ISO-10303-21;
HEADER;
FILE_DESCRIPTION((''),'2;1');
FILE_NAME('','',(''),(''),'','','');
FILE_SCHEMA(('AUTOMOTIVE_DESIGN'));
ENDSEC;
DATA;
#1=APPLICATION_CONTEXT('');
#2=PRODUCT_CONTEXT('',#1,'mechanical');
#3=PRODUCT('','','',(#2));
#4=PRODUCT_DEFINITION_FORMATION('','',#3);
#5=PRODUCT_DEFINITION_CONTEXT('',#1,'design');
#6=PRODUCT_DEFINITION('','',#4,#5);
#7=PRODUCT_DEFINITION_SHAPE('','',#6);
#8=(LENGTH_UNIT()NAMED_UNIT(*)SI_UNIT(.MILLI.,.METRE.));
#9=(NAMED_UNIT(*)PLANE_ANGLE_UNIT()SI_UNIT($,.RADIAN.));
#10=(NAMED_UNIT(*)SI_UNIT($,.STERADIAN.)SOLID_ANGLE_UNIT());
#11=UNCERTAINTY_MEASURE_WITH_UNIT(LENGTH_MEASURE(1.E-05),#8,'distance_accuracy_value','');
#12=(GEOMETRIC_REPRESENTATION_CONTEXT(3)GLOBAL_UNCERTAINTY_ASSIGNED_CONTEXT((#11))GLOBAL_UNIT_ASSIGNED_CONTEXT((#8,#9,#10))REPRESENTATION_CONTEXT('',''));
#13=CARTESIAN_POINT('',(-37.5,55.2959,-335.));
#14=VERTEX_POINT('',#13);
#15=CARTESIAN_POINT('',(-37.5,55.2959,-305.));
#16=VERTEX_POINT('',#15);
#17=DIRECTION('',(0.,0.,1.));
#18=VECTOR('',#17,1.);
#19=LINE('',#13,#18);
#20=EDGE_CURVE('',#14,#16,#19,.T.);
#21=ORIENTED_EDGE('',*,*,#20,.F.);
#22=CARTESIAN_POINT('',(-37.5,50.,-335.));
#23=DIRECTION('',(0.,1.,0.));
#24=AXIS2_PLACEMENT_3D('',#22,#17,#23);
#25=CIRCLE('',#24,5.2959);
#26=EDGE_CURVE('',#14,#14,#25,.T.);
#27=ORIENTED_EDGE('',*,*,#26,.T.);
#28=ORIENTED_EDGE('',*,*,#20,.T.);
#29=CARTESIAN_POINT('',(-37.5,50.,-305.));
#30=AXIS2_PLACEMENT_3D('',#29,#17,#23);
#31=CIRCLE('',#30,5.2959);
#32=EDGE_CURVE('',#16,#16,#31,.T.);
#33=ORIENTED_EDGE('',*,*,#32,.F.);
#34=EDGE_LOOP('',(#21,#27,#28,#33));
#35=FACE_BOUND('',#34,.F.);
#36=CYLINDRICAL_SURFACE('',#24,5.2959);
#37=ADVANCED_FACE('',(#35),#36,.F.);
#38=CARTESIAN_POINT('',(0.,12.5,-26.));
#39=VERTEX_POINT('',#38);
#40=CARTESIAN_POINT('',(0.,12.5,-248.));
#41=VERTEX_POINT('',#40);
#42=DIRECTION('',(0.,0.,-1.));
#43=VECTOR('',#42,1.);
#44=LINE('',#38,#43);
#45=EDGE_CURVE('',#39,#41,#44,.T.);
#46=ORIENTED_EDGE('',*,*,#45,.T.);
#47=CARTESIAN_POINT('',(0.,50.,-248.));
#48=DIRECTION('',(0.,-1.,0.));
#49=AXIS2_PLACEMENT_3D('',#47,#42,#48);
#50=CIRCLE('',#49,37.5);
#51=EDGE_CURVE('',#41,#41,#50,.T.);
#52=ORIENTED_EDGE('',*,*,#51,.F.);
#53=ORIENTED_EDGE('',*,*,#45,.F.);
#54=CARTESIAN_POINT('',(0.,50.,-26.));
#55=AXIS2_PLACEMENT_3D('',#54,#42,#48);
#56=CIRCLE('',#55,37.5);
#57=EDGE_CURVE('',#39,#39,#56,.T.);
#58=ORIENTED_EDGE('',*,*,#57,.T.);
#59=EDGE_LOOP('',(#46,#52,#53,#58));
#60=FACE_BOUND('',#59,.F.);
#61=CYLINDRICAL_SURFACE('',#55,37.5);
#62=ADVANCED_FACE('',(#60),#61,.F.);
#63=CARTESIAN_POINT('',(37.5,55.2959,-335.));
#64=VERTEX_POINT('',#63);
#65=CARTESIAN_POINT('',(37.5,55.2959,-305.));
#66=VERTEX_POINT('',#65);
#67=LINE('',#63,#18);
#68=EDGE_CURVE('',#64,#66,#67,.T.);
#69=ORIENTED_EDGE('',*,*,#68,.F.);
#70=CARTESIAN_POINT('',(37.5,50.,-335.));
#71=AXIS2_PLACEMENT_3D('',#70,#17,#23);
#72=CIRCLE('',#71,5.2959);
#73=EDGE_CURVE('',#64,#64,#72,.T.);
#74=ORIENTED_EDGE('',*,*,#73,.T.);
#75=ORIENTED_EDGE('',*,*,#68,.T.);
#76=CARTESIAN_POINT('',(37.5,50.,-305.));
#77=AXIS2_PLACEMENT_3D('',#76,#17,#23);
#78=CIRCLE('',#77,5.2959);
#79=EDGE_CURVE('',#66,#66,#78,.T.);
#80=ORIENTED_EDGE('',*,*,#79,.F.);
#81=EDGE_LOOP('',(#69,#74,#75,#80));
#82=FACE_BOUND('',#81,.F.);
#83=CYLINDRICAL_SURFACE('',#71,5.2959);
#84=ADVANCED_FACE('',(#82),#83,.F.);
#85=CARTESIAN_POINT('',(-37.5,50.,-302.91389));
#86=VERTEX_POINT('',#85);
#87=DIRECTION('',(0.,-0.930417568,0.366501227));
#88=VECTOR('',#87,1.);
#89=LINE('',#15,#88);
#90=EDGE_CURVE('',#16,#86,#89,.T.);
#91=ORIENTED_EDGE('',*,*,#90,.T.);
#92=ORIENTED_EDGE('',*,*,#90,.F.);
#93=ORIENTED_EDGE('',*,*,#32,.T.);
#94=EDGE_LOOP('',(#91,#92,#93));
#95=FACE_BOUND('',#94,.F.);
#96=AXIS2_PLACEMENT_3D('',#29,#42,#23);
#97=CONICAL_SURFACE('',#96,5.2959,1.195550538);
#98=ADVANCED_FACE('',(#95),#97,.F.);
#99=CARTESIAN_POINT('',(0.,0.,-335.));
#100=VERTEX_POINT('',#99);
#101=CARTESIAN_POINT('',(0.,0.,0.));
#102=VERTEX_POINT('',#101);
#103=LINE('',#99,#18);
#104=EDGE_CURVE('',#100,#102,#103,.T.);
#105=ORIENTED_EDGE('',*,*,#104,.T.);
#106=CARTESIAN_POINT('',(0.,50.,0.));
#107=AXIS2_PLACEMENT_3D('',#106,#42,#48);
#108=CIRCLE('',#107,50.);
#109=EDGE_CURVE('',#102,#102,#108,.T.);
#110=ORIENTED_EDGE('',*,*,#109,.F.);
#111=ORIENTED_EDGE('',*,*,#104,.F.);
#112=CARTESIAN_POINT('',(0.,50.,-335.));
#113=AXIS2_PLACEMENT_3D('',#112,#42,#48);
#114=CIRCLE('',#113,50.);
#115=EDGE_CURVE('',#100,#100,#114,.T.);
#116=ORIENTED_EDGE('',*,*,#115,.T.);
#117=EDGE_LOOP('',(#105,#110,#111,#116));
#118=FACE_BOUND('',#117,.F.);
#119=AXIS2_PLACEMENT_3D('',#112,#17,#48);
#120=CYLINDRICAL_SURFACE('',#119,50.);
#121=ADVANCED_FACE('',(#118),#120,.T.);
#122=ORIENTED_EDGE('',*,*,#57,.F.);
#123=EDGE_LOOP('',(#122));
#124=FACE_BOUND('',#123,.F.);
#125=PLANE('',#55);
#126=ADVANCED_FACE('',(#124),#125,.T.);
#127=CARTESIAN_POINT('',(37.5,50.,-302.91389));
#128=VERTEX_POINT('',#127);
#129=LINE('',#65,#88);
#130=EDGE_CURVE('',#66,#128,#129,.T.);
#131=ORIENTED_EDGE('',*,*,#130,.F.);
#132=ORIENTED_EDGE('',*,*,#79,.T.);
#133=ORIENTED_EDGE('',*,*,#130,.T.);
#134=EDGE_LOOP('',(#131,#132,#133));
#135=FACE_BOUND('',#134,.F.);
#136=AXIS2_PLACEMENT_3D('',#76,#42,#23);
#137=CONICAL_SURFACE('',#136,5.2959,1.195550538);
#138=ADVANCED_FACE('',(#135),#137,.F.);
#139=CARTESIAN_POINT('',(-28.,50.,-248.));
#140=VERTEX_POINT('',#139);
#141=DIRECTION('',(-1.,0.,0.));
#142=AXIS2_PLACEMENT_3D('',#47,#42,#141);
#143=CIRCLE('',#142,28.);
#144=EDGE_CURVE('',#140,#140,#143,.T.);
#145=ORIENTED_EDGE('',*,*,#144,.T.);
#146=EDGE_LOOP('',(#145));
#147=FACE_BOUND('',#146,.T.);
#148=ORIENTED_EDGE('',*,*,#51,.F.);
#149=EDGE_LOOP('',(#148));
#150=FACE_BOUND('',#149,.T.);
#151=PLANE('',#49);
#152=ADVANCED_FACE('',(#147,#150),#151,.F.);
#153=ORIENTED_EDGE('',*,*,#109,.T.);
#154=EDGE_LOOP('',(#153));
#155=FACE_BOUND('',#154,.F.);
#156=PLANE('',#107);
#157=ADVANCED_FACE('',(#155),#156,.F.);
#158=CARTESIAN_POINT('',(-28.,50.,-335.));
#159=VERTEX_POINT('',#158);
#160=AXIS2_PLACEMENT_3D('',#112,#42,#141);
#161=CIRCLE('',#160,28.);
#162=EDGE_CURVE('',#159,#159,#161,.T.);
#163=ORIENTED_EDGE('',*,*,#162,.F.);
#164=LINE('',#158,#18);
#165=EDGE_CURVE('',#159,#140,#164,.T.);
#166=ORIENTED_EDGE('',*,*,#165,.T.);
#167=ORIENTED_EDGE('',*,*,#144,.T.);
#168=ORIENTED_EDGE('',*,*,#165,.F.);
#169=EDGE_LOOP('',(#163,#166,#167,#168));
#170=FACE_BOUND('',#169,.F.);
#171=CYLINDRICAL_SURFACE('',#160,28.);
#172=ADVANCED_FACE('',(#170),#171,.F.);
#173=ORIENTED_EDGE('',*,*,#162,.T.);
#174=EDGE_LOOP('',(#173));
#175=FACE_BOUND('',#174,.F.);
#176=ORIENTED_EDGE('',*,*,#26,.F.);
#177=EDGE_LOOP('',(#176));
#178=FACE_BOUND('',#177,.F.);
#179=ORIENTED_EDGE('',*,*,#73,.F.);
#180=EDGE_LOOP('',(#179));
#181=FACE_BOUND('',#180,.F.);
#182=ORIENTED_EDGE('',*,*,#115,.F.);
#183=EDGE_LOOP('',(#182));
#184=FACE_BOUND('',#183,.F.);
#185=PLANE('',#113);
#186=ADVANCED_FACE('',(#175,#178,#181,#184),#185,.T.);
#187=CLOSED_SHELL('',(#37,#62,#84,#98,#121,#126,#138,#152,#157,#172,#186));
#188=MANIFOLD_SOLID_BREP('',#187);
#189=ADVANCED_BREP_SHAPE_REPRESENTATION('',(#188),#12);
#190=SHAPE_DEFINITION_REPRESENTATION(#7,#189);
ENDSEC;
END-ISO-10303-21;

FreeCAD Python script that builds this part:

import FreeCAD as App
import Part
import Sketcher
Q = App.Units.Quantity

doc = App.newDocument("Part")
params = doc.addObject("Spreadsheet::Sheet", "Params")
for row, (alias, value) in enumerate([
    ("sketch1_width", "50 mm"),
    ("sketch1_height", "335 mm"),
    ("sketch1_height2", "87 mm"),
    ("sketch1_height3", "26 mm"),
    ("sketch1_width2", "37.5 mm"),
    ("revolution_angle", "360 deg"),
    ("sketch2_diameter", "56 mm"),
    ("pocket1_length", "309 mm"),
    ("hole_diameter", "10.5918 mm"),
    ("hole_depth", "30 mm"),
], start=1):
    params.set(f"A{row}", alias)
    params.set(f"B{row}", "=" + value)
    params.setAlias(f"B{row}", alias)

body = doc.addObject("PartDesign::Body", "Body")

# Sketch on YZ plane
sketch1 = body.newObject("Sketcher::SketchObject", "Sketch")
sketch1.AttachmentSupport = (doc.getObject("YZ_Plane"), [""])
sketch1.MapMode = "FlatFace"
sketch1.addGeometry([
    Part.LineSegment(App.Vector(50, 0, 0), App.Vector(0, 0, 0)),  # 0
    Part.LineSegment(App.Vector(0, 0, 0), App.Vector(0, -335, 0)),  # 1
    Part.LineSegment(App.Vector(0, -335, 0), App.Vector(50, -335, 0)),  # 2
    Part.LineSegment(App.Vector(50, -335, 0), App.Vector(50, -248, 0)),  # 3
    Part.LineSegment(App.Vector(50, -248, 0), App.Vector(12, -248, 0)),  # 4
    Part.LineSegment(App.Vector(12, -248, 0), App.Vector(12, -26, 0)),  # 5
    Part.LineSegment(App.Vector(12, -26, 0), App.Vector(50, -26, 0)),  # 6
    Part.LineSegment(App.Vector(50, -26, 0), App.Vector(50, 0, 0)),  # 7
], False)
sketch1.addGeometry(Part.LineSegment(App.Vector(50, 0, 0), App.Vector(50, -335, 0)), True)  # axis
sketch1.addConstraint([
    Sketcher.Constraint("Coincident", 0, 2, 1, 1),
    Sketcher.Constraint("Coincident", 1, 2, 2, 1),
    Sketcher.Constraint("Coincident", 2, 2, 3, 1),
    Sketcher.Constraint("Coincident", 3, 2, 4, 1),
    Sketcher.Constraint("Coincident", 4, 2, 5, 1),
    Sketcher.Constraint("Coincident", 5, 2, 6, 1),
    Sketcher.Constraint("Coincident", 6, 2, 7, 1),
    Sketcher.Constraint("Coincident", 7, 2, 0, 1),
    Sketcher.Constraint("Horizontal", 0),
    Sketcher.Constraint("Vertical", 1),
    Sketcher.Constraint("Horizontal", 2),
    Sketcher.Constraint("Vertical", 3),
    Sketcher.Constraint("Horizontal", 4),
    Sketcher.Constraint("Vertical", 5),
    Sketcher.Constraint("Horizontal", 6),
    Sketcher.Constraint("Vertical", 7),
    Sketcher.Constraint("Vertical", 8),
    Sketcher.Constraint("Coincident", 0, 2, -1, 1),
    Sketcher.Constraint("Coincident", 8, 1, 7, 2),
    Sketcher.Constraint("Coincident", 8, 2, 2, 2),
    Sketcher.Constraint("DistanceX", 0, 2, 0, 1, Q("50 mm")),
    Sketcher.Constraint("DistanceY", 1, 2, 1, 1, Q("335 mm")),
    Sketcher.Constraint("DistanceY", 3, 1, 3, 2, Q("87 mm")),
    Sketcher.Constraint("DistanceY", 7, 1, 7, 2, Q("26 mm")),
    Sketcher.Constraint("DistanceX", 4, 2, 4, 1, Q("37.5 mm")),
])
sketch1.setExpression("Constraints[20]", "Params.sketch1_width")
sketch1.setExpression("Constraints[21]", "Params.sketch1_height")
sketch1.setExpression("Constraints[22]", "Params.sketch1_height2")
sketch1.setExpression("Constraints[23]", "Params.sketch1_height3")
sketch1.setExpression("Constraints[24]", "Params.sketch1_width2")
revolution = body.newObject("PartDesign::Revolution", "Revolution")
revolution.Profile = sketch1
revolution.ReferenceAxis = (sketch1, ["Axis0"])
revolution.setExpression("Angle", "Params.revolution_angle")

# Sketch on XY plane
sketch2 = body.newObject("Sketcher::SketchObject", "Sketch001")
sketch2.AttachmentSupport = (doc.getObject("XY_Plane"), [""])
sketch2.MapMode = "FlatFace"
sketch2.AttachmentOffset = App.Placement(App.Vector(0, 0, -335), App.Rotation())
sketch2.addGeometry(Part.Circle(App.Vector(0, 50, 0), App.Vector(0, 0, 1), 28), False)
sketch2.addConstraint([
    Sketcher.Constraint("PointOnObject", 0, 3, -2),
    Sketcher.Constraint("Diameter", 0, Q("56 mm")),
    Sketcher.Constraint("DistanceY", -1, 1, 0, 3, Q("50 mm")),
])
sketch2.setExpression("Constraints[1]", "Params.sketch2_diameter")
pocket1 = body.newObject("PartDesign::Pocket", "Pocket")
pocket1.Profile = sketch2
pocket1.setExpression("Length", "Params.pocket1_length")
pocket1.Reversed = True

# Sketch on XY plane
sketch3 = body.newObject("Sketcher::SketchObject", "Sketch002")
sketch3.AttachmentSupport = (doc.getObject("XY_Plane"), [""])
sketch3.MapMode = "FlatFace"
sketch3.AttachmentOffset = App.Placement(App.Vector(0, 0, -335), App.Rotation())
sketch3.addGeometry([
    Part.Circle(App.Vector(-38, 50, 0), App.Vector(0, 0, 1), 5),
    Part.Circle(App.Vector(38, 50, 0), App.Vector(0, 0, 1), 5),
], False)
sketch3.addConstraint([
    Sketcher.Constraint("Equal", 0, 1),
    Sketcher.Constraint("Symmetric", 0, 3, 1, 3, -2),
    Sketcher.Constraint("DistanceY", -1, 1, 0, 3, Q("50 mm")),
    Sketcher.Constraint("DistanceX", 0, 3, 1, 3, Q("75 mm")),
    Sketcher.Constraint("Diameter", 0, Q("10.5918 mm")),
])
doc.recompute()
hole = body.newObject("PartDesign::Hole", "Hole")
hole.Profile = sketch3
hole.ThreadType = "None"
hole.setExpression("Diameter", "Params.hole_diameter")
hole.DepthType = "Dimension"
hole.setExpression("Depth", "Params.hole_depth")
hole.DrillPoint = "Angled"
hole.DrillPointAngle = 137
hole.Reversed = True

doc.recompute()
